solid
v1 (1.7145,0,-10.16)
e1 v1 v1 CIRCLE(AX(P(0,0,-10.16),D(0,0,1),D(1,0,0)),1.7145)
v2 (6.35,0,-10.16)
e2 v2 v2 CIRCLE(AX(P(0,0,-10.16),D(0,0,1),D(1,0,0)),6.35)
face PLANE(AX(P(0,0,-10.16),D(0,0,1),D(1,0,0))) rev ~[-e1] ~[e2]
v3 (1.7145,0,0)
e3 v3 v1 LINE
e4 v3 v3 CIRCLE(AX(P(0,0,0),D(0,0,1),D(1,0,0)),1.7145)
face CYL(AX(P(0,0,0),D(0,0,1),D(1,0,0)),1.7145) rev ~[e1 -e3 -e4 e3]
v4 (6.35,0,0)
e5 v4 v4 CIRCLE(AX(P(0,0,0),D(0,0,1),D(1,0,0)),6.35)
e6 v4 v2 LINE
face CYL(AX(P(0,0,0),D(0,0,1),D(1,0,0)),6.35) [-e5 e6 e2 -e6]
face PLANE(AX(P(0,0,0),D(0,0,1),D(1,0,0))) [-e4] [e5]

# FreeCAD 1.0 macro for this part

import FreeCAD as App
import Part
import Sketcher

V = App.Vector
Q = App.Units.Quantity

doc = App.newDocument("Part")
body = doc.addObject("PartDesign::Body", "Body")

sketch1 = body.newObject("Sketcher::SketchObject", "Sketch")
sketch1.AttachmentSupport = (doc.getObject("XY_Plane"), [""])
sketch1.MapMode = "FlatFace"
sketch1.addGeometry(Part.Circle(V(0, 0, 0), V(0, 0, 1), 6.35), False)
sketch1.addGeometry(Part.Circle(V(0, 0, 0), V(0, 0, 1), 1.7145), False)
sketch1.addConstraint(Sketcher.Constraint("Coincident", 0, 3, -1, 1))
sketch1.addConstraint(Sketcher.Constraint("Coincident", 1, 3, -1, 1))
sketch1.addConstraint(Sketcher.Constraint("Diameter", 0, Q("0.5 in")))
sketch1.addConstraint(Sketcher.Constraint("Diameter", 1, Q("0.135 in")))
pad1 = body.newObject("PartDesign::Pad", "Pad")
pad1.Profile = sketch1
pad1.Length = Q("0.4 in")
pad1.Reversed = True

doc.recompute()
